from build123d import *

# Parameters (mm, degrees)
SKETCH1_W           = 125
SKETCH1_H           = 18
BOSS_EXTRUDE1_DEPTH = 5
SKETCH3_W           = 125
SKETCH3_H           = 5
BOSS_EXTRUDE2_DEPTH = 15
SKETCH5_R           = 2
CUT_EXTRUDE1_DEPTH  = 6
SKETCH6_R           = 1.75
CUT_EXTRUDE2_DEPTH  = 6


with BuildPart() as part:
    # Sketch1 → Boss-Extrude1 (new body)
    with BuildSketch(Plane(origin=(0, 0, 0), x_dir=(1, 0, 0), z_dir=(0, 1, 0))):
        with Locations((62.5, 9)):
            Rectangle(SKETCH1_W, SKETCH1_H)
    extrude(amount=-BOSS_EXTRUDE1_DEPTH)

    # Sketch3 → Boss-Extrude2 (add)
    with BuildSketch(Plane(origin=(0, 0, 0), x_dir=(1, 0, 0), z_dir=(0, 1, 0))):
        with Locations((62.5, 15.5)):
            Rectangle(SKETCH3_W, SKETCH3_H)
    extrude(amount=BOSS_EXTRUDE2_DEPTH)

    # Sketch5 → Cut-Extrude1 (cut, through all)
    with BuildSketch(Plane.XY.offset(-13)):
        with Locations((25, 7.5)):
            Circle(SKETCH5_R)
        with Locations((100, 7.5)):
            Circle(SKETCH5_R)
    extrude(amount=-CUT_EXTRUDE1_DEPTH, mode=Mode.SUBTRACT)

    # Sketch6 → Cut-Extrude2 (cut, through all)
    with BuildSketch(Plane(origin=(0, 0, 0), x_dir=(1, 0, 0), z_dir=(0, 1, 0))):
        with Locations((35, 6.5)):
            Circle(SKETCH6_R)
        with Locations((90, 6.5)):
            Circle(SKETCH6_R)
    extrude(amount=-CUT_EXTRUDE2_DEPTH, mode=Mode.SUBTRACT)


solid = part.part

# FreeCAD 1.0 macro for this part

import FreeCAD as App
import Part
import Sketcher
from FreeCAD import Vector

doc = App.newDocument("Part")
body = doc.addObject("PartDesign::Body", "Body")

# Sketch on XZ plane
sketch1 = body.newObject("Sketcher::SketchObject", "Sketch")
sketch1.AttachmentSupport = (doc.getObject("XZ_Plane"), [""])
sketch1.MapMode = "FlatFace"
sketch1.addGeometry([
    Part.LineSegment(Vector(0, -18, 0), Vector(0, 0, 0)),
    Part.LineSegment(Vector(0, 0, 0), Vector(125, 0, 0)),
    Part.LineSegment(Vector(125, 0, 0), Vector(125, -18, 0)),
    Part.LineSegment(Vector(125, -18, 0), Vector(0, -18, 0)),
], False)
sketch1.addConstraint([
    Sketcher.Constraint("Coincident", 0, 2, 1, 1),
    Sketcher.Constraint("Coincident", 1, 2, 2, 1),
    Sketcher.Constraint("Coincident", 2, 2, 3, 1),
    Sketcher.Constraint("Coincident", 3, 2, 0, 1),
    Sketcher.Constraint("Vertical", 0),
    Sketcher.Constraint("Horizontal", 1),
    Sketcher.Constraint("Vertical", 2),
    Sketcher.Constraint("Horizontal", 3),
    Sketcher.Constraint("Coincident", 0, 2, -1, 1),
    Sketcher.Constraint("DistanceX", 1, 1, 1, 2, 125.0),
    Sketcher.Constraint("DistanceY", 0, 1, 0, 2, 18.0),
])
pad1 = body.newObject("PartDesign::Pad", "Pad")
pad1.Profile = sketch1
pad1.Length = 5

# Sketch on XZ plane
sketch2 = body.newObject("Sketcher::SketchObject", "Sketch001")
sketch2.AttachmentSupport = (doc.getObject("XZ_Plane"), [""])
sketch2.MapMode = "FlatFace"
sketch2.addGeometry([
    Part.LineSegment(Vector(0, -18, 0), Vector(0, -13, 0)),
    Part.LineSegment(Vector(0, -13, 0), Vector(125, -13, 0)),
    Part.LineSegment(Vector(125, -13, 0), Vector(125, -18, 0)),
    Part.LineSegment(Vector(125, -18, 0), Vector(0, -18, 0)),
], False)
sketch2.addConstraint([
    Sketcher.Constraint("Coincident", 0, 2, 1, 1),
    Sketcher.Constraint("Coincident", 1, 2, 2, 1),
    Sketcher.Constraint("Coincident", 2, 2, 3, 1),
    Sketcher.Constraint("Coincident", 3, 2, 0, 1),
    Sketcher.Constraint("Vertical", 0),
    Sketcher.Constraint("Horizontal", 1),
    Sketcher.Constraint("Vertical", 2),
    Sketcher.Constraint("Horizontal", 3),
    Sketcher.Constraint("PointOnObject", 0, 2, -2),
    Sketcher.Constraint("DistanceX", 1, 1, 1, 2, 125.0),
    Sketcher.Constraint("DistanceY", 0, 1, 0, 2, 5.0),
    Sketcher.Constraint("DistanceY", 0, 2, -1, 1, 13.0),
])
pad2 = body.newObject("PartDesign::Pad", "Pad001")
pad2.Profile = sketch2
pad2.Length = 15
pad2.Reversed = True

# Sketch on XY plane
sketch3 = body.newObject("Sketcher::SketchObject", "Sketch002")
sketch3.AttachmentSupport = (doc.getObject("XY_Plane"), [""])
sketch3.MapMode = "FlatFace"
sketch3.AttachmentOffset = App.Placement(Vector(0, 0, -13), App.Rotation())
sketch3.addGeometry([
    Part.Circle(Vector(25, 7.5, 0), Vector(0, 0, 1), 2),
    Part.Circle(Vector(100, 7.5, 0), Vector(0, 0, 1), 2),
], False)
sketch3.addConstraint([
    Sketcher.Constraint("Equal", 0, 1),
    Sketcher.Constraint("Horizontal", 0, 3, 1, 3),
    Sketcher.Constraint("Diameter", 0, 4.0),
    Sketcher.Constraint("DistanceX", -1, 1, 0, 3, 25.0),
    Sketcher.Constraint("DistanceX", -1, 1, 1, 3, 100.0),
    Sketcher.Constraint("DistanceY", -1, 1, 0, 3, 7.5),
])
pocket1 = body.newObject("PartDesign::Pocket", "Pocket")
pocket1.Profile = sketch3
pocket1.Type = "ThroughAll"

# Sketch on XZ plane
sketch4 = body.newObject("Sketcher::SketchObject", "Sketch003")
sketch4.AttachmentSupport = (doc.getObject("XZ_Plane"), [""])
sketch4.MapMode = "FlatFace"
sketch4.addGeometry([
    Part.Circle(Vector(35, -6.5, 0), Vector(0, 0, 1), 1.8),
    Part.Circle(Vector(90, -6.5, 0), Vector(0, 0, 1), 1.8),
], False)
sketch4.addConstraint([
    Sketcher.Constraint("Equal", 0, 1),
    Sketcher.Constraint("Horizontal", 0, 3, 1, 3),
    Sketcher.Constraint("Diameter", 0, 3.5),
    Sketcher.Constraint("DistanceX", -1, 1, 0, 3, 35.0),
    Sketcher.Constraint("DistanceX", -1, 1, 1, 3, 90.0),
    Sketcher.Constraint("DistanceY", 0, 3, -1, 1, 6.5),
])
pocket2 = body.newObject("PartDesign::Pocket", "Pocket001")
pocket2.Profile = sketch4
pocket2.Type = "ThroughAll"
pocket2.Reversed = True

doc.recompute()
